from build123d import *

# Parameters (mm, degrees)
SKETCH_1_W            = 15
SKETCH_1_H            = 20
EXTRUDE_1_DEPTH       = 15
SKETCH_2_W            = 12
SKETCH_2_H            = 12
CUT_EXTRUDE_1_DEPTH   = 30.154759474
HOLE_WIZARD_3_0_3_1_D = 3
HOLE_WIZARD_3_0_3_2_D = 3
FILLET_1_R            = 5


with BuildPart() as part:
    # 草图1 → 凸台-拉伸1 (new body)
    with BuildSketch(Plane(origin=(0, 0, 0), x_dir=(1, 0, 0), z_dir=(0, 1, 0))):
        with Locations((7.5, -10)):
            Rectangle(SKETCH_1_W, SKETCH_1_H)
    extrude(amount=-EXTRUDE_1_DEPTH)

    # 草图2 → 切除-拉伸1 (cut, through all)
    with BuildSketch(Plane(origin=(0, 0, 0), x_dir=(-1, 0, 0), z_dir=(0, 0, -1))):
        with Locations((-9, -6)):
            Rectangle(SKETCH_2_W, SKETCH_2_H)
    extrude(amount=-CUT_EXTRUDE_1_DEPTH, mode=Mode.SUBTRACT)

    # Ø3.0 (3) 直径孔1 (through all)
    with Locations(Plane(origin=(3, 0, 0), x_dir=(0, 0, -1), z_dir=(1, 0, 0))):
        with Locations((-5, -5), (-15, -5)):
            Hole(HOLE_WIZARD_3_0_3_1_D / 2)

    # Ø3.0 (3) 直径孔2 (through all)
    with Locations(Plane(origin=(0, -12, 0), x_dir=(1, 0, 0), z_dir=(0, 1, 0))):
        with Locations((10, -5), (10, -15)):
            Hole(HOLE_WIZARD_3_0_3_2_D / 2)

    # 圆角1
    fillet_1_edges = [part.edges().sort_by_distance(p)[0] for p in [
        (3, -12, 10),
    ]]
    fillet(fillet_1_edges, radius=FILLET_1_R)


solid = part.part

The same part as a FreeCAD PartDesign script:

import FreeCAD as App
import Part
import Sketcher

V = App.Vector
Q = App.Units.Quantity


def edges_at(feature, points):
    """Names of the edges that pass closest to the given points."""
    edges = feature.Shape.Edges
    near = lambda p: min(range(len(edges)), key=lambda i: edges[i].distToShape(Part.Vertex(*p))[0])
    return sorted({f"Edge{near(p) + 1}" for p in points})


def add_polygon(sketch, points):
    """Adds a closed chain of lines whose ends are joined by coincident constraints."""
    first, n = sketch.GeometryCount, len(points)
    for a, b in zip(points, points[1:] + points[:1]):
        sketch.addGeometry(Part.LineSegment(App.Vector(*a, 0), App.Vector(*b, 0)), False)
    for i in range(n):
        sketch.addConstraint(Sketcher.Constraint("Coincident", first + i, 2, first + (i + 1) % n, 1))

doc = App.newDocument("Part")
body = doc.addObject("PartDesign::Body", "Body")

sketch1 = body.newObject("Sketcher::SketchObject", "Sketch")
sketch1.AttachmentSupport = (doc.getObject("XZ_Plane"), [""])
sketch1.MapMode = "FlatFace"
add_polygon(sketch1, [(0, 0), (0, 20), (15, 20), (15, 0)])
sketch1.addConstraint(Sketcher.Constraint("Vertical", 0))
sketch1.addConstraint(Sketcher.Constraint("Horizontal", 1))
sketch1.addConstraint(Sketcher.Constraint("Vertical", 2))
sketch1.addConstraint(Sketcher.Constraint("Horizontal", 3))
sketch1.addConstraint(Sketcher.Constraint("Coincident", 3, 2, -1, 1))
sketch1.addConstraint(Sketcher.Constraint("DistanceX", 1, 1, 1, 2, Q("15 mm")))
sketch1.addConstraint(Sketcher.Constraint("DistanceY", 0, 1, 0, 2, Q("20 mm")))
pad1 = body.newObject("PartDesign::Pad", "Pad")
pad1.Profile = sketch1
pad1.Length = 15

sketch2 = body.newObject("Sketcher::SketchObject", "Sketch001")
sketch2.AttachmentSupport = (doc.getObject("XY_Plane"), [""])
sketch2.MapMode = "FlatFace"
add_polygon(sketch2, [(15, 0), (15, -12), (3, -12), (3, 0)])
sketch2.addConstraint(Sketcher.Constraint("Vertical", 0))
sketch2.addConstraint(Sketcher.Constraint("Horizontal", 1))
sketch2.addConstraint(Sketcher.Constraint("Vertical", 2))
sketch2.addConstraint(Sketcher.Constraint("Horizontal", 3))
sketch2.addConstraint(Sketcher.Constraint("PointOnObject", 2, 2, -1))
sketch2.addConstraint(Sketcher.Constraint("Equal", 3, 0))
sketch2.addConstraint(Sketcher.Constraint("DistanceX", 1, 2, 1, 1, Q("12 mm")))
sketch2.addConstraint(Sketcher.Constraint("DistanceX", -1, 1, 0, 2, Q("15 mm")))
pocket1 = body.newObject("PartDesign::Pocket", "Pocket")
pocket1.Profile = sketch2
pocket1.Type = "ThroughAll"
pocket1.Reversed = True

sketch3 = body.newObject("Sketcher::SketchObject", "Sketch002")
sketch3.AttachmentSupport = (doc.getObject("YZ_Plane"), [""])
sketch3.MapMode = "FlatFace"
sketch3.AttachmentOffset = App.Placement(V(0, 0, 3), App.Rotation())
sketch3.addGeometry(Part.Circle(V(-5, 5, 0), V(0, 0, 1), 1.5), False)
sketch3.addGeometry(Part.Circle(V(-5, 15, 0), V(0, 0, 1), 1.5), False)
sketch3.addConstraint(Sketcher.Constraint("Equal", 0, 1))
sketch3.addConstraint(Sketcher.Constraint("Vertical", 0, 3, 1, 3))
sketch3.addConstraint(Sketcher.Constraint("Diameter", 0, Q("3 mm")))
sketch3.addConstraint(Sketcher.Constraint("DistanceX", 0, 3, -1, 1, Q("5 mm")))
sketch3.addConstraint(Sketcher.Constraint("DistanceY", -1, 1, 0, 3, Q("5 mm")))
sketch3.addConstraint(Sketcher.Constraint("DistanceY", -1, 1, 1, 3, Q("15 mm")))
doc.recompute()
hole = body.newObject("PartDesign::Hole", "Hole")
hole.Profile = sketch3
hole.ThreadType = "None"
hole.Diameter = 3
hole.DepthType = "ThroughAll"

sketch4 = body.newObject("Sketcher::SketchObject", "Sketch003")
sketch4.AttachmentSupport = (doc.getObject("XZ_Plane"), [""])
sketch4.MapMode = "FlatFace"
sketch4.AttachmentOffset = App.Placement(V(0, 0, 12), App.Rotation())
sketch4.addGeometry(Part.Circle(V(10, 5, 0), V(0, 0, 1), 1.5), False)
sketch4.addGeometry(Part.Circle(V(10, 15, 0), V(0, 0, 1), 1.5), False)
sketch4.addConstraint(Sketcher.Constraint("Equal", 0, 1))
sketch4.addConstraint(Sketcher.Constraint("Vertical", 0, 3, 1, 3))
sketch4.addConstraint(Sketcher.Constraint("Diameter", 0, Q("3 mm")))
sketch4.addConstraint(Sketcher.Constraint("DistanceX", -1, 1, 0, 3, Q("10 mm")))
sketch4.addConstraint(Sketcher.Constraint("DistanceY", -1, 1, 0, 3, Q("5 mm")))
sketch4.addConstraint(Sketcher.Constraint("DistanceY", -1, 1, 1, 3, Q("15 mm")))
doc.recompute()
hole2 = body.newObject("PartDesign::Hole", "Hole001")
hole2.Profile = sketch4
hole2.ThreadType = "None"
hole2.Diameter = 3
hole2.DepthType = "ThroughAll"
hole2.Reversed = True
doc.recompute()

fillet = body.newObject("PartDesign::Fillet", "Fillet")
fillet.Base = (hole2, edges_at(hole2, [(3, -12, 10)]))
fillet.Radius = 5

doc.recompute()
